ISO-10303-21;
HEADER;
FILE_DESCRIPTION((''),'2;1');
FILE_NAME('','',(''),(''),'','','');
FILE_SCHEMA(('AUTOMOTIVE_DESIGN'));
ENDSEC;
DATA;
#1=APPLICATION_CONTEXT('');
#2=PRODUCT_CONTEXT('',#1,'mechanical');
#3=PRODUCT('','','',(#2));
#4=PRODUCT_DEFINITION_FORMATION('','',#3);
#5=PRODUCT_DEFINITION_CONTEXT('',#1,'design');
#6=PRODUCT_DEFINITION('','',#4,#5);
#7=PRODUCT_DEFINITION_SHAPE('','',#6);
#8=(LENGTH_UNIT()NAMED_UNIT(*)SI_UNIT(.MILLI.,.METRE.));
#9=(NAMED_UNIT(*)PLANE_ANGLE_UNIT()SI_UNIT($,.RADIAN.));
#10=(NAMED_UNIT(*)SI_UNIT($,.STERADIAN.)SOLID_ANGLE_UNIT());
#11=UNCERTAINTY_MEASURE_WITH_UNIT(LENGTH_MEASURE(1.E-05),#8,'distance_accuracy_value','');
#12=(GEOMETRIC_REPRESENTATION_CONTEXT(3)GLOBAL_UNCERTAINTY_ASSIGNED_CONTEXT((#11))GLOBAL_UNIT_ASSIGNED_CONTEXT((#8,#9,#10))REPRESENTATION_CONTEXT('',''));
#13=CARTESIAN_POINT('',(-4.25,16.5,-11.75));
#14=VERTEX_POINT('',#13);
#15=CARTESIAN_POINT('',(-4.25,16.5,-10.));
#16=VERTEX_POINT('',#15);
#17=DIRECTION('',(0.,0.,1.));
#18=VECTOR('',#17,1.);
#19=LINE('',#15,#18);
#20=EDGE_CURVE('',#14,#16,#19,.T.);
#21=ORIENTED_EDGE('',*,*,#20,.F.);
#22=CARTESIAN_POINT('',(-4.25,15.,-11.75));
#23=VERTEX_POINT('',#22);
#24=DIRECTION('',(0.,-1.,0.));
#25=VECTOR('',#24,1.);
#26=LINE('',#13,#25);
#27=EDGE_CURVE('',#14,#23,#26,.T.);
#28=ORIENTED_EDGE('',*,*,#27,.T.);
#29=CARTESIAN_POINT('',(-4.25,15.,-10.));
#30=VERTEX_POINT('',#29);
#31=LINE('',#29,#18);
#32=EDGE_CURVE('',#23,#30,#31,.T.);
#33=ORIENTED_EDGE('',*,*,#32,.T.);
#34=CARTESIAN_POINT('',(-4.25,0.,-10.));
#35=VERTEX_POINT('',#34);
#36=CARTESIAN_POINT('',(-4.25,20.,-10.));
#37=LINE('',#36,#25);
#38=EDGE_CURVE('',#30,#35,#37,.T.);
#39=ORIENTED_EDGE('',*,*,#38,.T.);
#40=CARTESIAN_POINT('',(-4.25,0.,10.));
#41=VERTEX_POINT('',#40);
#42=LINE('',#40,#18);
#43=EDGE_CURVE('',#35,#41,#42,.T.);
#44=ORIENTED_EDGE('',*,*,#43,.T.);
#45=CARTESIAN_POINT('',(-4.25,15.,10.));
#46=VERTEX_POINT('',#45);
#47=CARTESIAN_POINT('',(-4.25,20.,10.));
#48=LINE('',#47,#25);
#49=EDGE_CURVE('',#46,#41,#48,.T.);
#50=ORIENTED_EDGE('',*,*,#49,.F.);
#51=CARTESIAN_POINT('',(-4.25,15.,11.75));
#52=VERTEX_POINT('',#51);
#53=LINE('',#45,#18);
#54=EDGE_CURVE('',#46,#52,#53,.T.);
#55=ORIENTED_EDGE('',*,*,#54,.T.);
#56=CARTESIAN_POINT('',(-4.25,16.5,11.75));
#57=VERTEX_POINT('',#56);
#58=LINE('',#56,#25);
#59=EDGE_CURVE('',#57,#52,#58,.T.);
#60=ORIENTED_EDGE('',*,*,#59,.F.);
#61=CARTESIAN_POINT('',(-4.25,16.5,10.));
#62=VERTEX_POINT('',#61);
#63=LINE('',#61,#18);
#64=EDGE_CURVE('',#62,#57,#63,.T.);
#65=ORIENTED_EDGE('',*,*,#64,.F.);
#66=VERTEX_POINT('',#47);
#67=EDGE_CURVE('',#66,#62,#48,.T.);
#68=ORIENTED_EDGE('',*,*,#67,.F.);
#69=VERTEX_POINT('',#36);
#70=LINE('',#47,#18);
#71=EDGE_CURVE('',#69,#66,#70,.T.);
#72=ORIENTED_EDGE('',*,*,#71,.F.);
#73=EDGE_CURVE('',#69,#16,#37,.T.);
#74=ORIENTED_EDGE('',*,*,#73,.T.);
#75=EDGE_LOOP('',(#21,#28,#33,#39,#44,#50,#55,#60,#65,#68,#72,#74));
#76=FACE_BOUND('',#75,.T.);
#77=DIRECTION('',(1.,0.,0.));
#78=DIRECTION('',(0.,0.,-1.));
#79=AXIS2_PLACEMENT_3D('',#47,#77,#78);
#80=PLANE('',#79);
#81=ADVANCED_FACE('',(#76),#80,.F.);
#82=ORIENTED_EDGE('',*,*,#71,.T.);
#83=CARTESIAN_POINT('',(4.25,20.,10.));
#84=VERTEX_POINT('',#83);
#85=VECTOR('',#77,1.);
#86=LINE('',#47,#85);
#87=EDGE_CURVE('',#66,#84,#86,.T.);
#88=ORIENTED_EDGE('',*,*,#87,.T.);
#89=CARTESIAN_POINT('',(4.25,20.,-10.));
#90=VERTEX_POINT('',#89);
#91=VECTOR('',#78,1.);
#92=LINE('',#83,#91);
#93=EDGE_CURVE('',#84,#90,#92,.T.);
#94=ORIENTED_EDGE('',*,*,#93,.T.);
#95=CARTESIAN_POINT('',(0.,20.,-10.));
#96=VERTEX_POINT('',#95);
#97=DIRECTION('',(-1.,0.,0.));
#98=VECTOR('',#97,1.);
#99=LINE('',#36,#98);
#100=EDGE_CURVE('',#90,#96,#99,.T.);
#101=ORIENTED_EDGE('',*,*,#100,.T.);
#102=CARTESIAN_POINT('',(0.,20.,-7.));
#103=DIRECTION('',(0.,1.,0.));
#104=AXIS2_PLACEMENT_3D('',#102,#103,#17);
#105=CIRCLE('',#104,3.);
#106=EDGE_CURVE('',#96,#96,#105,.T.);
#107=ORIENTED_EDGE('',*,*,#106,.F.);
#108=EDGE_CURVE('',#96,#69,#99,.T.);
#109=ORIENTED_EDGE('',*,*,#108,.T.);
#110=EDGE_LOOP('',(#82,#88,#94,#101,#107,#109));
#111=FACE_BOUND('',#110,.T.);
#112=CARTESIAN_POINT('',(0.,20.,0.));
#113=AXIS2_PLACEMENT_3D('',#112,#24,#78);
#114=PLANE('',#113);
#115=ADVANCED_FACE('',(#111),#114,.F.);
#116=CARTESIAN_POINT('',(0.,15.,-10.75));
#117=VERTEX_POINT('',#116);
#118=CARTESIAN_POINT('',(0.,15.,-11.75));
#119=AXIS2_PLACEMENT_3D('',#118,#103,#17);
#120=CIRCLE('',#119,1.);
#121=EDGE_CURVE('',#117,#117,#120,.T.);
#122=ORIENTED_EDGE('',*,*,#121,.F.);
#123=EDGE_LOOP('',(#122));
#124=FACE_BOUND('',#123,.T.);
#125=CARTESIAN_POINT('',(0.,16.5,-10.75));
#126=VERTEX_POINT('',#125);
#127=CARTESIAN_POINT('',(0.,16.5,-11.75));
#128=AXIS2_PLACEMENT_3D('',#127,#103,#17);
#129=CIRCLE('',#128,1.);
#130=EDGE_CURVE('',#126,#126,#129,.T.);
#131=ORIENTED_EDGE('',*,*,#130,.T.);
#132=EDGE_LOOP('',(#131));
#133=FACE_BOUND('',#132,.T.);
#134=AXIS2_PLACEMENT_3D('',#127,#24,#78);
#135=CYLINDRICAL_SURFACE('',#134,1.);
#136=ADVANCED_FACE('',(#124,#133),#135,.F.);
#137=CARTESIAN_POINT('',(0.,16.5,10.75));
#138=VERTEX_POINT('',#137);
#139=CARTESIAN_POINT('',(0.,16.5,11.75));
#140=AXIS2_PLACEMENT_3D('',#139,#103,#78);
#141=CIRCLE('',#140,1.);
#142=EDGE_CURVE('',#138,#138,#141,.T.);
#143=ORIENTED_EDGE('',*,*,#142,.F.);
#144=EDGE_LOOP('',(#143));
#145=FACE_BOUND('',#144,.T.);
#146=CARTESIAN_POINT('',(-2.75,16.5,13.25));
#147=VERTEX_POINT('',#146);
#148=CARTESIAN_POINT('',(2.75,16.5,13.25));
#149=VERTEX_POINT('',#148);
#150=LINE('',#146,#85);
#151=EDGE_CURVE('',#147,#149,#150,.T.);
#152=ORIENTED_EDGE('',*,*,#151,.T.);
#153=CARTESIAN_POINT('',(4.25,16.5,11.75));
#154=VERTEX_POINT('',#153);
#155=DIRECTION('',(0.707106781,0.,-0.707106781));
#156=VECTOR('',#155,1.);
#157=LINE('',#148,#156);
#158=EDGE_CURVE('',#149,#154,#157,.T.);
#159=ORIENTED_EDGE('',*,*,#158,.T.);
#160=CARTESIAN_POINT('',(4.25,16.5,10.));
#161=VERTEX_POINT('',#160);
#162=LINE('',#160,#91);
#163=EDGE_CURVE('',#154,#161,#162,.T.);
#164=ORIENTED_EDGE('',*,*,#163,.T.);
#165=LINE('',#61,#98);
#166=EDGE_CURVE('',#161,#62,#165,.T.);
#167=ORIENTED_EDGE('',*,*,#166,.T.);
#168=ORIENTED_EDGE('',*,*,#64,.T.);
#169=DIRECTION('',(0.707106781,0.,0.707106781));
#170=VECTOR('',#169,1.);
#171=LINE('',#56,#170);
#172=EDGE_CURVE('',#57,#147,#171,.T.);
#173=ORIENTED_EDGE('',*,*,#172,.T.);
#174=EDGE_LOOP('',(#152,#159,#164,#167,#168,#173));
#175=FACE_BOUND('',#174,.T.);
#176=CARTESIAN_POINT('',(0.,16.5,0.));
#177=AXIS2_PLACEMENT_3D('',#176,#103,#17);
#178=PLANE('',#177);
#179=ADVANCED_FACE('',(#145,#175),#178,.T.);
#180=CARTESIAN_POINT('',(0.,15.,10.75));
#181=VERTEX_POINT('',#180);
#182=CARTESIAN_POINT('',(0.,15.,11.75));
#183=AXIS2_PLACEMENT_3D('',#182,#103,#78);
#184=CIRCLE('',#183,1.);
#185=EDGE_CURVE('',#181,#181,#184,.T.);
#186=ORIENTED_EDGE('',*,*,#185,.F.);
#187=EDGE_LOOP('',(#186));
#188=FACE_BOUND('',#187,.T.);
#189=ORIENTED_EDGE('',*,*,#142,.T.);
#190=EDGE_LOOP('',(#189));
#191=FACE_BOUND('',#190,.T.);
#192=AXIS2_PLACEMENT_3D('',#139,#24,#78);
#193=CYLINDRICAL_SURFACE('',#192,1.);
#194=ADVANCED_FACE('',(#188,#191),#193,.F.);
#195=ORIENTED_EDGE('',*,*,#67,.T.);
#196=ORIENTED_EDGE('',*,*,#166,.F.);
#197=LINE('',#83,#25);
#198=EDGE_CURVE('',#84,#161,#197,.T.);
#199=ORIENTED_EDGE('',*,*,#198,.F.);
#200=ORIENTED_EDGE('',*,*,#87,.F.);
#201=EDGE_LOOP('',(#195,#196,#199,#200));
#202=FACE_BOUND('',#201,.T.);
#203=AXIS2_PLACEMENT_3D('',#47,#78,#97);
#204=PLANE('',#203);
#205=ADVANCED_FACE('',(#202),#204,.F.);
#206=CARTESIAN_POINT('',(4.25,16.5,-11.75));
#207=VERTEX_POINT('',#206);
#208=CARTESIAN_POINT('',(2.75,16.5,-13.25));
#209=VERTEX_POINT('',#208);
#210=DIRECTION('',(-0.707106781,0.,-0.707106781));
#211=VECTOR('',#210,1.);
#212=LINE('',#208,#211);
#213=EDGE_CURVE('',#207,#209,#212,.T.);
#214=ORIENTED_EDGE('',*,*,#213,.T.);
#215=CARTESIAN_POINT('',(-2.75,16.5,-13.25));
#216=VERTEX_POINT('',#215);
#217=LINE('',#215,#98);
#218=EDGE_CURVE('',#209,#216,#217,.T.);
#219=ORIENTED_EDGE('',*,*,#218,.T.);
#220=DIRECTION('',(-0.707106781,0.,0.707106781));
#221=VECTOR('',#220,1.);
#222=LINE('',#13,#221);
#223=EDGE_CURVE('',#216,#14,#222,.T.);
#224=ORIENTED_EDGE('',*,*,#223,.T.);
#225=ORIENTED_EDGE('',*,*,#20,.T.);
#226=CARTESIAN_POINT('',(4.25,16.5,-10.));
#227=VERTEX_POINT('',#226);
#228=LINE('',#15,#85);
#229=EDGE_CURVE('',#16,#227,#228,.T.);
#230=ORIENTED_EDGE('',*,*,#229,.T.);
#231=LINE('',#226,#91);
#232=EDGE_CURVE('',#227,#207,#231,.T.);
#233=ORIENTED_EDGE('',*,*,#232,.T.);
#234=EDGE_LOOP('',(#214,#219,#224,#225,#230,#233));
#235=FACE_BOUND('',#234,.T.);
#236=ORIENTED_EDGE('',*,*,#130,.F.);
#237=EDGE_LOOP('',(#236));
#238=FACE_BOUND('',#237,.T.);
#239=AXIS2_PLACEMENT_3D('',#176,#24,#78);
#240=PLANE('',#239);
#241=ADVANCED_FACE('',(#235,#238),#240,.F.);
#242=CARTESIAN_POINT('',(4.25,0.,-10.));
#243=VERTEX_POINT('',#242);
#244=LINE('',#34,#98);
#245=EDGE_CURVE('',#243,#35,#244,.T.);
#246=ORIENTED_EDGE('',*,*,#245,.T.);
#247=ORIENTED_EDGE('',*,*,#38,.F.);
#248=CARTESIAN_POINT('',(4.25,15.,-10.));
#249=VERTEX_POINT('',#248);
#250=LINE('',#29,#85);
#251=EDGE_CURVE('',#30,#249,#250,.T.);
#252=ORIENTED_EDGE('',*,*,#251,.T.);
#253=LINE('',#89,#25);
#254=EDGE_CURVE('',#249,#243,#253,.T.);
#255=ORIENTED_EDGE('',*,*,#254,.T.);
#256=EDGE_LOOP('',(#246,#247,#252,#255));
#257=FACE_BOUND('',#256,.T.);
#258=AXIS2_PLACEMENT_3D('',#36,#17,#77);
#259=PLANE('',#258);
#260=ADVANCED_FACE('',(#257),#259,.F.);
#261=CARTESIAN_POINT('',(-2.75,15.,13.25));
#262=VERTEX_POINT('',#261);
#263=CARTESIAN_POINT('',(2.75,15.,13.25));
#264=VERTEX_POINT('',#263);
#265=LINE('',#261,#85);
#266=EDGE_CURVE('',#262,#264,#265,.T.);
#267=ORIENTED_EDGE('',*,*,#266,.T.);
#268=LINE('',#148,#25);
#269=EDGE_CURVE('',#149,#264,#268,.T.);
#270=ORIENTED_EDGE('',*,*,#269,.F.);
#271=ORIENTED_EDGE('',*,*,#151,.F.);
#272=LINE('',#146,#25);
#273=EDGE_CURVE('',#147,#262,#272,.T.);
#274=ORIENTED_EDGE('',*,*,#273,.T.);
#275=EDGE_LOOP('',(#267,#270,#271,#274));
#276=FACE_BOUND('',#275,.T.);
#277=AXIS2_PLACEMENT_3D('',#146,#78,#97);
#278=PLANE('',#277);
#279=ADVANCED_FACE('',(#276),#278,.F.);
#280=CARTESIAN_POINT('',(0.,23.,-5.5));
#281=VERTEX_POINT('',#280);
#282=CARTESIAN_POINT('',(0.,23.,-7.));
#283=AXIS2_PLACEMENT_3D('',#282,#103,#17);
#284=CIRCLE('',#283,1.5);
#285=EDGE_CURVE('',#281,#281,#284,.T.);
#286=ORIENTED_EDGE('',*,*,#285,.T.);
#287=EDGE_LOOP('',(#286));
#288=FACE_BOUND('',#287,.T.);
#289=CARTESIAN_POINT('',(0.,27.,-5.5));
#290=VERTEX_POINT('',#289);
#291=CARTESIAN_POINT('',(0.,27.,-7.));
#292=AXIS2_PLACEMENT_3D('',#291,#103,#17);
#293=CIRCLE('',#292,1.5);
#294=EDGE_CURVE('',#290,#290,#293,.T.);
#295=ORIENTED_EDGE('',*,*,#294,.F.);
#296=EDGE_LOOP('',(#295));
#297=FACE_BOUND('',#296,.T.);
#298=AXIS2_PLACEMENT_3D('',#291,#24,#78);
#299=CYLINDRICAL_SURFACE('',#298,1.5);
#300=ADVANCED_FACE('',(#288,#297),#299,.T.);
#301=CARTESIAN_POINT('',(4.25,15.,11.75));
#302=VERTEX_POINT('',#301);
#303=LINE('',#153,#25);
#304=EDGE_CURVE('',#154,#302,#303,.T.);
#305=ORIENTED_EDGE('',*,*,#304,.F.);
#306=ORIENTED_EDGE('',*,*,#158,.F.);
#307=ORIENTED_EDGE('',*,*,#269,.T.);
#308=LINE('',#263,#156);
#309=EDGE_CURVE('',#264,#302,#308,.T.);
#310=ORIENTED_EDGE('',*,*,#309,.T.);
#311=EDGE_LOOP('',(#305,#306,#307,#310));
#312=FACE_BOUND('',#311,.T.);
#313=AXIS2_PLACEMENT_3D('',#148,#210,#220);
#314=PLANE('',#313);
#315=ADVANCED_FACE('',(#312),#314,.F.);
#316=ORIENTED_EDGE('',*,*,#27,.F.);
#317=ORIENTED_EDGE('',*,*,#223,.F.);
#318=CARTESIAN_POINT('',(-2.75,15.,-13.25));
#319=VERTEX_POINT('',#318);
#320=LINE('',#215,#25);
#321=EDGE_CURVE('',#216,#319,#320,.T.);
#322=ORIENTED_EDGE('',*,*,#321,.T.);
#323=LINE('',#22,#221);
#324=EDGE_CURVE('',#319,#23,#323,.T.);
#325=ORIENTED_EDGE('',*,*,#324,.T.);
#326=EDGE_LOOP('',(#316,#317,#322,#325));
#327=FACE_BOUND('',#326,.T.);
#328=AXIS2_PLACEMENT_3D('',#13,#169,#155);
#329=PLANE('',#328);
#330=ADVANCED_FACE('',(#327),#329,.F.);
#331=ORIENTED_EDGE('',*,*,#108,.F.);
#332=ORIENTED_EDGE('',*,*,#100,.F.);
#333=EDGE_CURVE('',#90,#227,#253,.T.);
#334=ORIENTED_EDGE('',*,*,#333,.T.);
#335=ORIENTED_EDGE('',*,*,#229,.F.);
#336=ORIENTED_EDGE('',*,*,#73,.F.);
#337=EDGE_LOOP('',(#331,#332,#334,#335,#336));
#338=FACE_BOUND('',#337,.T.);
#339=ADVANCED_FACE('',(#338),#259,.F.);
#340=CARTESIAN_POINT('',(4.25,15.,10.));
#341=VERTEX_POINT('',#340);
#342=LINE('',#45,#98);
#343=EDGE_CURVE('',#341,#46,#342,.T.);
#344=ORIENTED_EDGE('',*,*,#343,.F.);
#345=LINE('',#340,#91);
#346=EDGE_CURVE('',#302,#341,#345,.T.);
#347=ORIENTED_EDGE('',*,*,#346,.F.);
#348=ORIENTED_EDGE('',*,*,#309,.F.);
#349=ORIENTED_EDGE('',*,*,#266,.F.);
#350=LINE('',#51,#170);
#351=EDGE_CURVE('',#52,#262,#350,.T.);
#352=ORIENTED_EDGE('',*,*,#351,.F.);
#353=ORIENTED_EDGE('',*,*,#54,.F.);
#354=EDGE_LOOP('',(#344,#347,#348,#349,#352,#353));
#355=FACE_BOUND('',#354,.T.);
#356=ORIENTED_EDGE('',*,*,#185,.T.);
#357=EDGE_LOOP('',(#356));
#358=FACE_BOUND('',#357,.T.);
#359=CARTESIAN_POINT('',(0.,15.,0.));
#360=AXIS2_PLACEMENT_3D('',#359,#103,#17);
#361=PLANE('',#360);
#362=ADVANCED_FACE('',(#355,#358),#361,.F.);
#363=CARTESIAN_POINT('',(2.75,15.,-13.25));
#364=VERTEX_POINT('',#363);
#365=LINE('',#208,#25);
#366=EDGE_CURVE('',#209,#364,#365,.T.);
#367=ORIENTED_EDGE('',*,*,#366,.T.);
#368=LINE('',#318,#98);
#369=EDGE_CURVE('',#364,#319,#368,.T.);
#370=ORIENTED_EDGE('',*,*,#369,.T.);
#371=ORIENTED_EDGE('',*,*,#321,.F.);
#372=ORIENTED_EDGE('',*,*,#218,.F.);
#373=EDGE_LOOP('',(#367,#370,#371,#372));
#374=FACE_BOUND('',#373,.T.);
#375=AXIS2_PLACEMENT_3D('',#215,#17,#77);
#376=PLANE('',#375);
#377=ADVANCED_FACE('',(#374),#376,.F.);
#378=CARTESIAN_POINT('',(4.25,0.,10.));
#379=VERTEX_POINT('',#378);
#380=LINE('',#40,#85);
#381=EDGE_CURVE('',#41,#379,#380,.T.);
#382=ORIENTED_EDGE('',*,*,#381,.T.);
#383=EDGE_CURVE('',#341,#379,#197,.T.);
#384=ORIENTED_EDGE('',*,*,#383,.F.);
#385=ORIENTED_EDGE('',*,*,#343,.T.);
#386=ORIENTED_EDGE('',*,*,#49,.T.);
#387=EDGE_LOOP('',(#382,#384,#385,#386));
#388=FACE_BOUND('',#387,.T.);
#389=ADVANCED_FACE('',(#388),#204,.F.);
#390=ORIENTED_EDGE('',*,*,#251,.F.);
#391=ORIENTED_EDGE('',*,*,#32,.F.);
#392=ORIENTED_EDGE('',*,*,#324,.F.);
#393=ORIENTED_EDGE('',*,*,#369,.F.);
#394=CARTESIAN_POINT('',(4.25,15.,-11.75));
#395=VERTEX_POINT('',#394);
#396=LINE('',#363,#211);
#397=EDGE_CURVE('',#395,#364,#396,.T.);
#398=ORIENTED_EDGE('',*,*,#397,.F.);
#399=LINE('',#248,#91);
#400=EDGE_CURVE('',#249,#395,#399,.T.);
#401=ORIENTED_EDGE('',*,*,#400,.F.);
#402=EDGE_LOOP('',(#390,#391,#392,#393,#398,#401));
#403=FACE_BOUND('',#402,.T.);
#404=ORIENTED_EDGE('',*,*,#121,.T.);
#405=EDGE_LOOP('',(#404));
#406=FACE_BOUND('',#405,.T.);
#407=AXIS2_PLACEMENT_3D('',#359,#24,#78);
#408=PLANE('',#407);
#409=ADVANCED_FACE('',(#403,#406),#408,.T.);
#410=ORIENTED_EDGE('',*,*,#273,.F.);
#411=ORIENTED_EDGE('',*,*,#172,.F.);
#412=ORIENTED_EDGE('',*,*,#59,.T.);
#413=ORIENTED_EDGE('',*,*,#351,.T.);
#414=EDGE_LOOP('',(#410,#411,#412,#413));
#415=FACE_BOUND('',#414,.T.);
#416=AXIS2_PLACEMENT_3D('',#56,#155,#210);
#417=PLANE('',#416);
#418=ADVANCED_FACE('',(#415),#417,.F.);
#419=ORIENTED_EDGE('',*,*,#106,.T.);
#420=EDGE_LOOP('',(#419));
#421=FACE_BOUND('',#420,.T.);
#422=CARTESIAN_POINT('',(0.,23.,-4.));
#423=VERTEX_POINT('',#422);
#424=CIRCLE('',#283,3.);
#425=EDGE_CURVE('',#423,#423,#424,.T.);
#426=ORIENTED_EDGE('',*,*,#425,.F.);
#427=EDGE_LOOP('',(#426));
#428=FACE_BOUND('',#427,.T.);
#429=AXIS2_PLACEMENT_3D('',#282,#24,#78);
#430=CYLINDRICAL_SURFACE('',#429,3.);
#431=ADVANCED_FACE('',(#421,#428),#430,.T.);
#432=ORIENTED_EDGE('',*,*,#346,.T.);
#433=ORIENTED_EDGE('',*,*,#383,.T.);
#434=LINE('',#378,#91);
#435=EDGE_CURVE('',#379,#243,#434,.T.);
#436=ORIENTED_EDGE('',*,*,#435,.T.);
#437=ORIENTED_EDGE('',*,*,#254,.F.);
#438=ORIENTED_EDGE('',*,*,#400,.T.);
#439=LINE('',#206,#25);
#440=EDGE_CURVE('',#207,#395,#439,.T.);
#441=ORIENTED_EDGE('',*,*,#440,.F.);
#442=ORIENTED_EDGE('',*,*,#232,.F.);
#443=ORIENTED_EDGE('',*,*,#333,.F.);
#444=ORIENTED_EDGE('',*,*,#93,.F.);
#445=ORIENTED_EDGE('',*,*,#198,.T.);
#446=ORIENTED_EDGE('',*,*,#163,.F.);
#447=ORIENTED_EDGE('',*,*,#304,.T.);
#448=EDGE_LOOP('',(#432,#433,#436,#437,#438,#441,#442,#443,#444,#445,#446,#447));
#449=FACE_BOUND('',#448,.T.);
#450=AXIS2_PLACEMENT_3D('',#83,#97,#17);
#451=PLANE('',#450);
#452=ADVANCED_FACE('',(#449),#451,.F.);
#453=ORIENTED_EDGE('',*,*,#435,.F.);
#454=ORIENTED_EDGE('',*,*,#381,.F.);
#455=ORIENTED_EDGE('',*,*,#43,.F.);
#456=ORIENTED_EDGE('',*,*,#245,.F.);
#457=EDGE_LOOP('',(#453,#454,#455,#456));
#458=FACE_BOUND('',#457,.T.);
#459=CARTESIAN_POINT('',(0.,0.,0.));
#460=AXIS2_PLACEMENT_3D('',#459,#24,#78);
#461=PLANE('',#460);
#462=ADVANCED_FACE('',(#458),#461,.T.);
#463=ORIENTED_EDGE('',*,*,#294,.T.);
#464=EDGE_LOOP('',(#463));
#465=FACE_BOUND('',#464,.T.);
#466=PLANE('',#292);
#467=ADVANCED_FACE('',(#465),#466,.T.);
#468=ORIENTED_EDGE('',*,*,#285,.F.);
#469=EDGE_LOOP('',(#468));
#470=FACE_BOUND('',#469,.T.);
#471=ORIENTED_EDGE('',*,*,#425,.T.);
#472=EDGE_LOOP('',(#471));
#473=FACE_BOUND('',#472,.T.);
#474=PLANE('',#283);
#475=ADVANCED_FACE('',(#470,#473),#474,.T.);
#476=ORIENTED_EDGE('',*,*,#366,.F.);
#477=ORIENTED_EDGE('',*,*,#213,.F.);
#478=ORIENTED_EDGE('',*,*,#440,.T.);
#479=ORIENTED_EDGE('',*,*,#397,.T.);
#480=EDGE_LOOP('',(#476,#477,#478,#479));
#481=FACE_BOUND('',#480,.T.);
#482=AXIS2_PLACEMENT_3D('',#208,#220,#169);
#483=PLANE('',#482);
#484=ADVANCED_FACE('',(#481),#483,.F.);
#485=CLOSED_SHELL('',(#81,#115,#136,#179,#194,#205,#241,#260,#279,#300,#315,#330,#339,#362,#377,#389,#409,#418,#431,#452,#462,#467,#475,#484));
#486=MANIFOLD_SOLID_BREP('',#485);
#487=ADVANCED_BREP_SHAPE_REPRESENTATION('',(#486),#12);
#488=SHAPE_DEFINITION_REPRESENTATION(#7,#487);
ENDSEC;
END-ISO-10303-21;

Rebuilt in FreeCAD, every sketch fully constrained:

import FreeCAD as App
import Part
import Sketcher

V = App.Vector
Q = App.Units.Quantity


def add_polygon(sketch, points):
    """Adds a closed chain of lines whose ends are joined by coincident constraints."""
    first, n = sketch.GeometryCount, len(points)
    for a, b in zip(points, points[1:] + points[:1]):
        sketch.addGeometry(Part.LineSegment(App.Vector(*a, 0), App.Vector(*b, 0)), False)
    for i in range(n):
        sketch.addConstraint(Sketcher.Constraint("Coincident", first + i, 2, first + (i + 1) % n, 1))

doc = App.newDocument("Part")
body = doc.addObject("PartDesign::Body", "Body")

sketch1 = body.newObject("Sketcher::SketchObject", "Sketch")
sketch1.AttachmentSupport = (doc.getObject("XZ_Plane"), [""])
sketch1.MapMode = "FlatFace"
add_polygon(sketch1, [(-4, -10), (-4, 10), (4, 10), (4, -10)])
sketch1.addConstraint([
    Sketcher.Constraint("Vertical", 0),
    Sketcher.Constraint("Horizontal", 1),
    Sketcher.Constraint("Vertical", 2),
    Sketcher.Constraint("Horizontal", 3),
    Sketcher.Constraint("Symmetric", 0, 2, 2, 2, -1, 1),
    Sketcher.Constraint("DistanceY", 0, 1, 0, 2, Q("20 mm")),
    Sketcher.Constraint("DistanceX", 1, 1, 1, 2, Q("8.5 mm")),
])
pad1 = body.newObject("PartDesign::Pad", "Pad")
pad1.Profile = sketch1
pad1.Length = 20
pad1.Reversed = True

sketch2 = body.newObject("Sketcher::SketchObject", "Sketch001")
sketch2.AttachmentSupport = (doc.getObject("XZ_Plane"), [""])
sketch2.MapMode = "FlatFace"
sketch2.AttachmentOffset = App.Placement(V(0, 0, -15), App.Rotation())
add_polygon(sketch2, [(-4.2, -10), (4.2, -10), (4.2, -11.8), (2.8, -13.2), (-2.8, -13.2), (-4.2, -11.8)])
sketch2.addGeometry(Part.Circle(V(0, -11.8, 0), V(0, 0, 1), 1), False)
add_polygon(sketch2, [(-2.8, 13.2), (2.8, 13.2), (4.2, 11.8), (4.2, 10), (-4.2, 10), (-4.2, 11.8)])
sketch2.addGeometry(Part.Circle(V(0, 11.8, 0), V(0, 0, 1), 1), False)
sketch2.addConstraint([
    Sketcher.Constraint("Horizontal", 0),
    Sketcher.Constraint("Vertical", 1),
    Sketcher.Constraint("Horizontal", 3),
    Sketcher.Constraint("Vertical", 5),
    Sketcher.Constraint("Horizontal", 7),
    Sketcher.Constraint("Vertical", 9),
    Sketcher.Constraint("Horizontal", 10),
    Sketcher.Constraint("Vertical", 11),
    Sketcher.Constraint("Equal", 6, 13),
    Sketcher.Constraint("Symmetric", 6, 3, 13, 3, -1, 1),
    Sketcher.Constraint("Symmetric", 3, 2, 7, 2, -1, 1),
    Sketcher.Constraint("Symmetric", 4, 2, 8, 2, -1, 1),
    Sketcher.Constraint("Symmetric", 0, 2, 10, 2, -1, 1),
    Sketcher.Constraint("Symmetric", 1, 2, 4, 2, -2),
    Sketcher.Constraint("PointOnObject", 6, 3, -2),
    Sketcher.Constraint("Perpendicular", 2, 4),
    Sketcher.Constraint("Perpendicular", 8, 12),
    Sketcher.Constraint("Horizontal", 6, 3, 1, 2),
    Sketcher.Constraint("Horizontal", 8, 2, 11, 2),
    Sketcher.Constraint("Vertical", 2, 2, 7, 2),
    Sketcher.Constraint("Diameter", 6, Q("2 mm")),
    Sketcher.Constraint("DistanceX", 0, 1, 0, 2, Q("8.5 mm")),
    Sketcher.Constraint("DistanceX", 3, 2, 3, 1, Q("5.5 mm")),
    Sketcher.Constraint("DistanceY", 0, 2, -1, 1, Q("10 mm")),
    Sketcher.Constraint("DistanceY", 2, 2, 13, 3, Q("25 mm")),
])
pad2 = body.newObject("PartDesign::Pad", "Pad001")
pad2.Profile = sketch2
pad2.Length = 1.5
pad2.Reversed = True

sketch3 = body.newObject("Sketcher::SketchObject", "Sketch002")
sketch3.AttachmentSupport = (doc.getObject("XZ_Plane"), [""])
sketch3.MapMode = "FlatFace"
sketch3.AttachmentOffset = App.Placement(V(0, 0, -20), App.Rotation())
sketch3.addGeometry(Part.Circle(V(0, -7, 0), V(0, 0, 1), 3), False)
sketch3.addConstraint([
    Sketcher.Constraint("PointOnObject", 0, 3, -2),
    Sketcher.Constraint("Diameter", 0, Q("6 mm")),
    Sketcher.Constraint("DistanceY", 0, 3, -1, 1, Q("7 mm")),
])
pad3 = body.newObject("PartDesign::Pad", "Pad002")
pad3.Profile = sketch3
pad3.Length = 3
pad3.Reversed = True

sketch4 = body.newObject("Sketcher::SketchObject", "Sketch003")
sketch4.AttachmentSupport = (doc.getObject("XZ_Plane"), [""])
sketch4.MapMode = "FlatFace"
sketch4.AttachmentOffset = App.Placement(V(0, 0, -23), App.Rotation())
sketch4.addGeometry(Part.Circle(V(0, -7, 0), V(0, 0, 1), 1.5), False)
sketch4.addConstraint([
    Sketcher.Constraint("PointOnObject", 0, 3, -2),
    Sketcher.Constraint("Diameter", 0, Q("3 mm")),
    Sketcher.Constraint("DistanceY", 0, 3, -1, 1, Q("7 mm")),
])
pad4 = body.newObject("PartDesign::Pad", "Pad003")
pad4.Profile = sketch4
pad4.Length = 4
pad4.Reversed = True

doc.recompute()
